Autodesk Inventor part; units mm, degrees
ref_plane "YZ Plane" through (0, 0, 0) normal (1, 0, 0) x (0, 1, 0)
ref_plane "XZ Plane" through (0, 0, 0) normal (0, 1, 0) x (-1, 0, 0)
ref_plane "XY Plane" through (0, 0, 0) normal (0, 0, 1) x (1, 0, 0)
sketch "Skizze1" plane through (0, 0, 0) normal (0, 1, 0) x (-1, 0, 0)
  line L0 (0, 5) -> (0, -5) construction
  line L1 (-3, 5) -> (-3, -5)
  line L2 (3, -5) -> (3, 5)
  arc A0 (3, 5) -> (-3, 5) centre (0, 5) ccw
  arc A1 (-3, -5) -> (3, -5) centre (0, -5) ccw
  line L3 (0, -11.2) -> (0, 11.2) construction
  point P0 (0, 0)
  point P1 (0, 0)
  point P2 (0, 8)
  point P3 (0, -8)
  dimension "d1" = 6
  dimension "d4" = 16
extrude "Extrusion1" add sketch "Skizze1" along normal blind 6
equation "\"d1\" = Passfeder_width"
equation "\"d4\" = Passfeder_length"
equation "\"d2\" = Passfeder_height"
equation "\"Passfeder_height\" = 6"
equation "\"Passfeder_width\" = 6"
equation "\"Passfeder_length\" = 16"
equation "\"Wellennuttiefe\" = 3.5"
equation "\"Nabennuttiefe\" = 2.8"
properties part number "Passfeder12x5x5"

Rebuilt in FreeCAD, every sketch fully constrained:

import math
import FreeCAD as App
import Part
import Sketcher
Q = App.Units.Quantity

doc = App.newDocument("Part")
body = doc.addObject("PartDesign::Body", "Body")

# Sketch on XZ plane
sketch1 = doc.addObject("Sketcher::SketchObject", "Sketch")
body.addObject(sketch1)
sketch1.AttachmentSupport = (doc.XZ_Plane, [""])
sketch1.MapMode = "FlatFace"
sketch1.addGeometry([
    Part.ArcOfCircle(Part.Circle(App.Vector(0, 5, 0), App.Vector(0, 0, 1), 3), math.radians(0), math.radians(180)),
    Part.LineSegment(App.Vector(3, 5, 0), App.Vector(3, -5, 0)),
    Part.ArcOfCircle(Part.Circle(App.Vector(0, -5, 0), App.Vector(0, 0, 1), 3), math.radians(180), math.radians(360)),
    Part.LineSegment(App.Vector(-3, -5, 0), App.Vector(-3, 5, 0)),
], False)
sketch1.addConstraint([
    Sketcher.Constraint("Tangent", 0, 1, 1, 1),
    Sketcher.Constraint("Tangent", 1, 2, 2, 2),
    Sketcher.Constraint("Tangent", 2, 1, 3, 1),
    Sketcher.Constraint("Tangent", 3, 2, 0, 2),
    Sketcher.Constraint("Vertical", 1),
    Sketcher.Constraint("Vertical", 3),
    Sketcher.Constraint("Symmetric", 0, 3, 2, 3, -1, 1),
    Sketcher.Constraint("Radius", 0, Q("3 mm")),
    Sketcher.Constraint("DistanceY", 1, 2, 1, 1, Q("10 mm")),
])
pad1 = doc.addObject("PartDesign::Pad", "Pad")
body.addObject(pad1)
pad1.Profile = sketch1
pad1.Length = 6
pad1.Reversed = True

doc.recompute()
